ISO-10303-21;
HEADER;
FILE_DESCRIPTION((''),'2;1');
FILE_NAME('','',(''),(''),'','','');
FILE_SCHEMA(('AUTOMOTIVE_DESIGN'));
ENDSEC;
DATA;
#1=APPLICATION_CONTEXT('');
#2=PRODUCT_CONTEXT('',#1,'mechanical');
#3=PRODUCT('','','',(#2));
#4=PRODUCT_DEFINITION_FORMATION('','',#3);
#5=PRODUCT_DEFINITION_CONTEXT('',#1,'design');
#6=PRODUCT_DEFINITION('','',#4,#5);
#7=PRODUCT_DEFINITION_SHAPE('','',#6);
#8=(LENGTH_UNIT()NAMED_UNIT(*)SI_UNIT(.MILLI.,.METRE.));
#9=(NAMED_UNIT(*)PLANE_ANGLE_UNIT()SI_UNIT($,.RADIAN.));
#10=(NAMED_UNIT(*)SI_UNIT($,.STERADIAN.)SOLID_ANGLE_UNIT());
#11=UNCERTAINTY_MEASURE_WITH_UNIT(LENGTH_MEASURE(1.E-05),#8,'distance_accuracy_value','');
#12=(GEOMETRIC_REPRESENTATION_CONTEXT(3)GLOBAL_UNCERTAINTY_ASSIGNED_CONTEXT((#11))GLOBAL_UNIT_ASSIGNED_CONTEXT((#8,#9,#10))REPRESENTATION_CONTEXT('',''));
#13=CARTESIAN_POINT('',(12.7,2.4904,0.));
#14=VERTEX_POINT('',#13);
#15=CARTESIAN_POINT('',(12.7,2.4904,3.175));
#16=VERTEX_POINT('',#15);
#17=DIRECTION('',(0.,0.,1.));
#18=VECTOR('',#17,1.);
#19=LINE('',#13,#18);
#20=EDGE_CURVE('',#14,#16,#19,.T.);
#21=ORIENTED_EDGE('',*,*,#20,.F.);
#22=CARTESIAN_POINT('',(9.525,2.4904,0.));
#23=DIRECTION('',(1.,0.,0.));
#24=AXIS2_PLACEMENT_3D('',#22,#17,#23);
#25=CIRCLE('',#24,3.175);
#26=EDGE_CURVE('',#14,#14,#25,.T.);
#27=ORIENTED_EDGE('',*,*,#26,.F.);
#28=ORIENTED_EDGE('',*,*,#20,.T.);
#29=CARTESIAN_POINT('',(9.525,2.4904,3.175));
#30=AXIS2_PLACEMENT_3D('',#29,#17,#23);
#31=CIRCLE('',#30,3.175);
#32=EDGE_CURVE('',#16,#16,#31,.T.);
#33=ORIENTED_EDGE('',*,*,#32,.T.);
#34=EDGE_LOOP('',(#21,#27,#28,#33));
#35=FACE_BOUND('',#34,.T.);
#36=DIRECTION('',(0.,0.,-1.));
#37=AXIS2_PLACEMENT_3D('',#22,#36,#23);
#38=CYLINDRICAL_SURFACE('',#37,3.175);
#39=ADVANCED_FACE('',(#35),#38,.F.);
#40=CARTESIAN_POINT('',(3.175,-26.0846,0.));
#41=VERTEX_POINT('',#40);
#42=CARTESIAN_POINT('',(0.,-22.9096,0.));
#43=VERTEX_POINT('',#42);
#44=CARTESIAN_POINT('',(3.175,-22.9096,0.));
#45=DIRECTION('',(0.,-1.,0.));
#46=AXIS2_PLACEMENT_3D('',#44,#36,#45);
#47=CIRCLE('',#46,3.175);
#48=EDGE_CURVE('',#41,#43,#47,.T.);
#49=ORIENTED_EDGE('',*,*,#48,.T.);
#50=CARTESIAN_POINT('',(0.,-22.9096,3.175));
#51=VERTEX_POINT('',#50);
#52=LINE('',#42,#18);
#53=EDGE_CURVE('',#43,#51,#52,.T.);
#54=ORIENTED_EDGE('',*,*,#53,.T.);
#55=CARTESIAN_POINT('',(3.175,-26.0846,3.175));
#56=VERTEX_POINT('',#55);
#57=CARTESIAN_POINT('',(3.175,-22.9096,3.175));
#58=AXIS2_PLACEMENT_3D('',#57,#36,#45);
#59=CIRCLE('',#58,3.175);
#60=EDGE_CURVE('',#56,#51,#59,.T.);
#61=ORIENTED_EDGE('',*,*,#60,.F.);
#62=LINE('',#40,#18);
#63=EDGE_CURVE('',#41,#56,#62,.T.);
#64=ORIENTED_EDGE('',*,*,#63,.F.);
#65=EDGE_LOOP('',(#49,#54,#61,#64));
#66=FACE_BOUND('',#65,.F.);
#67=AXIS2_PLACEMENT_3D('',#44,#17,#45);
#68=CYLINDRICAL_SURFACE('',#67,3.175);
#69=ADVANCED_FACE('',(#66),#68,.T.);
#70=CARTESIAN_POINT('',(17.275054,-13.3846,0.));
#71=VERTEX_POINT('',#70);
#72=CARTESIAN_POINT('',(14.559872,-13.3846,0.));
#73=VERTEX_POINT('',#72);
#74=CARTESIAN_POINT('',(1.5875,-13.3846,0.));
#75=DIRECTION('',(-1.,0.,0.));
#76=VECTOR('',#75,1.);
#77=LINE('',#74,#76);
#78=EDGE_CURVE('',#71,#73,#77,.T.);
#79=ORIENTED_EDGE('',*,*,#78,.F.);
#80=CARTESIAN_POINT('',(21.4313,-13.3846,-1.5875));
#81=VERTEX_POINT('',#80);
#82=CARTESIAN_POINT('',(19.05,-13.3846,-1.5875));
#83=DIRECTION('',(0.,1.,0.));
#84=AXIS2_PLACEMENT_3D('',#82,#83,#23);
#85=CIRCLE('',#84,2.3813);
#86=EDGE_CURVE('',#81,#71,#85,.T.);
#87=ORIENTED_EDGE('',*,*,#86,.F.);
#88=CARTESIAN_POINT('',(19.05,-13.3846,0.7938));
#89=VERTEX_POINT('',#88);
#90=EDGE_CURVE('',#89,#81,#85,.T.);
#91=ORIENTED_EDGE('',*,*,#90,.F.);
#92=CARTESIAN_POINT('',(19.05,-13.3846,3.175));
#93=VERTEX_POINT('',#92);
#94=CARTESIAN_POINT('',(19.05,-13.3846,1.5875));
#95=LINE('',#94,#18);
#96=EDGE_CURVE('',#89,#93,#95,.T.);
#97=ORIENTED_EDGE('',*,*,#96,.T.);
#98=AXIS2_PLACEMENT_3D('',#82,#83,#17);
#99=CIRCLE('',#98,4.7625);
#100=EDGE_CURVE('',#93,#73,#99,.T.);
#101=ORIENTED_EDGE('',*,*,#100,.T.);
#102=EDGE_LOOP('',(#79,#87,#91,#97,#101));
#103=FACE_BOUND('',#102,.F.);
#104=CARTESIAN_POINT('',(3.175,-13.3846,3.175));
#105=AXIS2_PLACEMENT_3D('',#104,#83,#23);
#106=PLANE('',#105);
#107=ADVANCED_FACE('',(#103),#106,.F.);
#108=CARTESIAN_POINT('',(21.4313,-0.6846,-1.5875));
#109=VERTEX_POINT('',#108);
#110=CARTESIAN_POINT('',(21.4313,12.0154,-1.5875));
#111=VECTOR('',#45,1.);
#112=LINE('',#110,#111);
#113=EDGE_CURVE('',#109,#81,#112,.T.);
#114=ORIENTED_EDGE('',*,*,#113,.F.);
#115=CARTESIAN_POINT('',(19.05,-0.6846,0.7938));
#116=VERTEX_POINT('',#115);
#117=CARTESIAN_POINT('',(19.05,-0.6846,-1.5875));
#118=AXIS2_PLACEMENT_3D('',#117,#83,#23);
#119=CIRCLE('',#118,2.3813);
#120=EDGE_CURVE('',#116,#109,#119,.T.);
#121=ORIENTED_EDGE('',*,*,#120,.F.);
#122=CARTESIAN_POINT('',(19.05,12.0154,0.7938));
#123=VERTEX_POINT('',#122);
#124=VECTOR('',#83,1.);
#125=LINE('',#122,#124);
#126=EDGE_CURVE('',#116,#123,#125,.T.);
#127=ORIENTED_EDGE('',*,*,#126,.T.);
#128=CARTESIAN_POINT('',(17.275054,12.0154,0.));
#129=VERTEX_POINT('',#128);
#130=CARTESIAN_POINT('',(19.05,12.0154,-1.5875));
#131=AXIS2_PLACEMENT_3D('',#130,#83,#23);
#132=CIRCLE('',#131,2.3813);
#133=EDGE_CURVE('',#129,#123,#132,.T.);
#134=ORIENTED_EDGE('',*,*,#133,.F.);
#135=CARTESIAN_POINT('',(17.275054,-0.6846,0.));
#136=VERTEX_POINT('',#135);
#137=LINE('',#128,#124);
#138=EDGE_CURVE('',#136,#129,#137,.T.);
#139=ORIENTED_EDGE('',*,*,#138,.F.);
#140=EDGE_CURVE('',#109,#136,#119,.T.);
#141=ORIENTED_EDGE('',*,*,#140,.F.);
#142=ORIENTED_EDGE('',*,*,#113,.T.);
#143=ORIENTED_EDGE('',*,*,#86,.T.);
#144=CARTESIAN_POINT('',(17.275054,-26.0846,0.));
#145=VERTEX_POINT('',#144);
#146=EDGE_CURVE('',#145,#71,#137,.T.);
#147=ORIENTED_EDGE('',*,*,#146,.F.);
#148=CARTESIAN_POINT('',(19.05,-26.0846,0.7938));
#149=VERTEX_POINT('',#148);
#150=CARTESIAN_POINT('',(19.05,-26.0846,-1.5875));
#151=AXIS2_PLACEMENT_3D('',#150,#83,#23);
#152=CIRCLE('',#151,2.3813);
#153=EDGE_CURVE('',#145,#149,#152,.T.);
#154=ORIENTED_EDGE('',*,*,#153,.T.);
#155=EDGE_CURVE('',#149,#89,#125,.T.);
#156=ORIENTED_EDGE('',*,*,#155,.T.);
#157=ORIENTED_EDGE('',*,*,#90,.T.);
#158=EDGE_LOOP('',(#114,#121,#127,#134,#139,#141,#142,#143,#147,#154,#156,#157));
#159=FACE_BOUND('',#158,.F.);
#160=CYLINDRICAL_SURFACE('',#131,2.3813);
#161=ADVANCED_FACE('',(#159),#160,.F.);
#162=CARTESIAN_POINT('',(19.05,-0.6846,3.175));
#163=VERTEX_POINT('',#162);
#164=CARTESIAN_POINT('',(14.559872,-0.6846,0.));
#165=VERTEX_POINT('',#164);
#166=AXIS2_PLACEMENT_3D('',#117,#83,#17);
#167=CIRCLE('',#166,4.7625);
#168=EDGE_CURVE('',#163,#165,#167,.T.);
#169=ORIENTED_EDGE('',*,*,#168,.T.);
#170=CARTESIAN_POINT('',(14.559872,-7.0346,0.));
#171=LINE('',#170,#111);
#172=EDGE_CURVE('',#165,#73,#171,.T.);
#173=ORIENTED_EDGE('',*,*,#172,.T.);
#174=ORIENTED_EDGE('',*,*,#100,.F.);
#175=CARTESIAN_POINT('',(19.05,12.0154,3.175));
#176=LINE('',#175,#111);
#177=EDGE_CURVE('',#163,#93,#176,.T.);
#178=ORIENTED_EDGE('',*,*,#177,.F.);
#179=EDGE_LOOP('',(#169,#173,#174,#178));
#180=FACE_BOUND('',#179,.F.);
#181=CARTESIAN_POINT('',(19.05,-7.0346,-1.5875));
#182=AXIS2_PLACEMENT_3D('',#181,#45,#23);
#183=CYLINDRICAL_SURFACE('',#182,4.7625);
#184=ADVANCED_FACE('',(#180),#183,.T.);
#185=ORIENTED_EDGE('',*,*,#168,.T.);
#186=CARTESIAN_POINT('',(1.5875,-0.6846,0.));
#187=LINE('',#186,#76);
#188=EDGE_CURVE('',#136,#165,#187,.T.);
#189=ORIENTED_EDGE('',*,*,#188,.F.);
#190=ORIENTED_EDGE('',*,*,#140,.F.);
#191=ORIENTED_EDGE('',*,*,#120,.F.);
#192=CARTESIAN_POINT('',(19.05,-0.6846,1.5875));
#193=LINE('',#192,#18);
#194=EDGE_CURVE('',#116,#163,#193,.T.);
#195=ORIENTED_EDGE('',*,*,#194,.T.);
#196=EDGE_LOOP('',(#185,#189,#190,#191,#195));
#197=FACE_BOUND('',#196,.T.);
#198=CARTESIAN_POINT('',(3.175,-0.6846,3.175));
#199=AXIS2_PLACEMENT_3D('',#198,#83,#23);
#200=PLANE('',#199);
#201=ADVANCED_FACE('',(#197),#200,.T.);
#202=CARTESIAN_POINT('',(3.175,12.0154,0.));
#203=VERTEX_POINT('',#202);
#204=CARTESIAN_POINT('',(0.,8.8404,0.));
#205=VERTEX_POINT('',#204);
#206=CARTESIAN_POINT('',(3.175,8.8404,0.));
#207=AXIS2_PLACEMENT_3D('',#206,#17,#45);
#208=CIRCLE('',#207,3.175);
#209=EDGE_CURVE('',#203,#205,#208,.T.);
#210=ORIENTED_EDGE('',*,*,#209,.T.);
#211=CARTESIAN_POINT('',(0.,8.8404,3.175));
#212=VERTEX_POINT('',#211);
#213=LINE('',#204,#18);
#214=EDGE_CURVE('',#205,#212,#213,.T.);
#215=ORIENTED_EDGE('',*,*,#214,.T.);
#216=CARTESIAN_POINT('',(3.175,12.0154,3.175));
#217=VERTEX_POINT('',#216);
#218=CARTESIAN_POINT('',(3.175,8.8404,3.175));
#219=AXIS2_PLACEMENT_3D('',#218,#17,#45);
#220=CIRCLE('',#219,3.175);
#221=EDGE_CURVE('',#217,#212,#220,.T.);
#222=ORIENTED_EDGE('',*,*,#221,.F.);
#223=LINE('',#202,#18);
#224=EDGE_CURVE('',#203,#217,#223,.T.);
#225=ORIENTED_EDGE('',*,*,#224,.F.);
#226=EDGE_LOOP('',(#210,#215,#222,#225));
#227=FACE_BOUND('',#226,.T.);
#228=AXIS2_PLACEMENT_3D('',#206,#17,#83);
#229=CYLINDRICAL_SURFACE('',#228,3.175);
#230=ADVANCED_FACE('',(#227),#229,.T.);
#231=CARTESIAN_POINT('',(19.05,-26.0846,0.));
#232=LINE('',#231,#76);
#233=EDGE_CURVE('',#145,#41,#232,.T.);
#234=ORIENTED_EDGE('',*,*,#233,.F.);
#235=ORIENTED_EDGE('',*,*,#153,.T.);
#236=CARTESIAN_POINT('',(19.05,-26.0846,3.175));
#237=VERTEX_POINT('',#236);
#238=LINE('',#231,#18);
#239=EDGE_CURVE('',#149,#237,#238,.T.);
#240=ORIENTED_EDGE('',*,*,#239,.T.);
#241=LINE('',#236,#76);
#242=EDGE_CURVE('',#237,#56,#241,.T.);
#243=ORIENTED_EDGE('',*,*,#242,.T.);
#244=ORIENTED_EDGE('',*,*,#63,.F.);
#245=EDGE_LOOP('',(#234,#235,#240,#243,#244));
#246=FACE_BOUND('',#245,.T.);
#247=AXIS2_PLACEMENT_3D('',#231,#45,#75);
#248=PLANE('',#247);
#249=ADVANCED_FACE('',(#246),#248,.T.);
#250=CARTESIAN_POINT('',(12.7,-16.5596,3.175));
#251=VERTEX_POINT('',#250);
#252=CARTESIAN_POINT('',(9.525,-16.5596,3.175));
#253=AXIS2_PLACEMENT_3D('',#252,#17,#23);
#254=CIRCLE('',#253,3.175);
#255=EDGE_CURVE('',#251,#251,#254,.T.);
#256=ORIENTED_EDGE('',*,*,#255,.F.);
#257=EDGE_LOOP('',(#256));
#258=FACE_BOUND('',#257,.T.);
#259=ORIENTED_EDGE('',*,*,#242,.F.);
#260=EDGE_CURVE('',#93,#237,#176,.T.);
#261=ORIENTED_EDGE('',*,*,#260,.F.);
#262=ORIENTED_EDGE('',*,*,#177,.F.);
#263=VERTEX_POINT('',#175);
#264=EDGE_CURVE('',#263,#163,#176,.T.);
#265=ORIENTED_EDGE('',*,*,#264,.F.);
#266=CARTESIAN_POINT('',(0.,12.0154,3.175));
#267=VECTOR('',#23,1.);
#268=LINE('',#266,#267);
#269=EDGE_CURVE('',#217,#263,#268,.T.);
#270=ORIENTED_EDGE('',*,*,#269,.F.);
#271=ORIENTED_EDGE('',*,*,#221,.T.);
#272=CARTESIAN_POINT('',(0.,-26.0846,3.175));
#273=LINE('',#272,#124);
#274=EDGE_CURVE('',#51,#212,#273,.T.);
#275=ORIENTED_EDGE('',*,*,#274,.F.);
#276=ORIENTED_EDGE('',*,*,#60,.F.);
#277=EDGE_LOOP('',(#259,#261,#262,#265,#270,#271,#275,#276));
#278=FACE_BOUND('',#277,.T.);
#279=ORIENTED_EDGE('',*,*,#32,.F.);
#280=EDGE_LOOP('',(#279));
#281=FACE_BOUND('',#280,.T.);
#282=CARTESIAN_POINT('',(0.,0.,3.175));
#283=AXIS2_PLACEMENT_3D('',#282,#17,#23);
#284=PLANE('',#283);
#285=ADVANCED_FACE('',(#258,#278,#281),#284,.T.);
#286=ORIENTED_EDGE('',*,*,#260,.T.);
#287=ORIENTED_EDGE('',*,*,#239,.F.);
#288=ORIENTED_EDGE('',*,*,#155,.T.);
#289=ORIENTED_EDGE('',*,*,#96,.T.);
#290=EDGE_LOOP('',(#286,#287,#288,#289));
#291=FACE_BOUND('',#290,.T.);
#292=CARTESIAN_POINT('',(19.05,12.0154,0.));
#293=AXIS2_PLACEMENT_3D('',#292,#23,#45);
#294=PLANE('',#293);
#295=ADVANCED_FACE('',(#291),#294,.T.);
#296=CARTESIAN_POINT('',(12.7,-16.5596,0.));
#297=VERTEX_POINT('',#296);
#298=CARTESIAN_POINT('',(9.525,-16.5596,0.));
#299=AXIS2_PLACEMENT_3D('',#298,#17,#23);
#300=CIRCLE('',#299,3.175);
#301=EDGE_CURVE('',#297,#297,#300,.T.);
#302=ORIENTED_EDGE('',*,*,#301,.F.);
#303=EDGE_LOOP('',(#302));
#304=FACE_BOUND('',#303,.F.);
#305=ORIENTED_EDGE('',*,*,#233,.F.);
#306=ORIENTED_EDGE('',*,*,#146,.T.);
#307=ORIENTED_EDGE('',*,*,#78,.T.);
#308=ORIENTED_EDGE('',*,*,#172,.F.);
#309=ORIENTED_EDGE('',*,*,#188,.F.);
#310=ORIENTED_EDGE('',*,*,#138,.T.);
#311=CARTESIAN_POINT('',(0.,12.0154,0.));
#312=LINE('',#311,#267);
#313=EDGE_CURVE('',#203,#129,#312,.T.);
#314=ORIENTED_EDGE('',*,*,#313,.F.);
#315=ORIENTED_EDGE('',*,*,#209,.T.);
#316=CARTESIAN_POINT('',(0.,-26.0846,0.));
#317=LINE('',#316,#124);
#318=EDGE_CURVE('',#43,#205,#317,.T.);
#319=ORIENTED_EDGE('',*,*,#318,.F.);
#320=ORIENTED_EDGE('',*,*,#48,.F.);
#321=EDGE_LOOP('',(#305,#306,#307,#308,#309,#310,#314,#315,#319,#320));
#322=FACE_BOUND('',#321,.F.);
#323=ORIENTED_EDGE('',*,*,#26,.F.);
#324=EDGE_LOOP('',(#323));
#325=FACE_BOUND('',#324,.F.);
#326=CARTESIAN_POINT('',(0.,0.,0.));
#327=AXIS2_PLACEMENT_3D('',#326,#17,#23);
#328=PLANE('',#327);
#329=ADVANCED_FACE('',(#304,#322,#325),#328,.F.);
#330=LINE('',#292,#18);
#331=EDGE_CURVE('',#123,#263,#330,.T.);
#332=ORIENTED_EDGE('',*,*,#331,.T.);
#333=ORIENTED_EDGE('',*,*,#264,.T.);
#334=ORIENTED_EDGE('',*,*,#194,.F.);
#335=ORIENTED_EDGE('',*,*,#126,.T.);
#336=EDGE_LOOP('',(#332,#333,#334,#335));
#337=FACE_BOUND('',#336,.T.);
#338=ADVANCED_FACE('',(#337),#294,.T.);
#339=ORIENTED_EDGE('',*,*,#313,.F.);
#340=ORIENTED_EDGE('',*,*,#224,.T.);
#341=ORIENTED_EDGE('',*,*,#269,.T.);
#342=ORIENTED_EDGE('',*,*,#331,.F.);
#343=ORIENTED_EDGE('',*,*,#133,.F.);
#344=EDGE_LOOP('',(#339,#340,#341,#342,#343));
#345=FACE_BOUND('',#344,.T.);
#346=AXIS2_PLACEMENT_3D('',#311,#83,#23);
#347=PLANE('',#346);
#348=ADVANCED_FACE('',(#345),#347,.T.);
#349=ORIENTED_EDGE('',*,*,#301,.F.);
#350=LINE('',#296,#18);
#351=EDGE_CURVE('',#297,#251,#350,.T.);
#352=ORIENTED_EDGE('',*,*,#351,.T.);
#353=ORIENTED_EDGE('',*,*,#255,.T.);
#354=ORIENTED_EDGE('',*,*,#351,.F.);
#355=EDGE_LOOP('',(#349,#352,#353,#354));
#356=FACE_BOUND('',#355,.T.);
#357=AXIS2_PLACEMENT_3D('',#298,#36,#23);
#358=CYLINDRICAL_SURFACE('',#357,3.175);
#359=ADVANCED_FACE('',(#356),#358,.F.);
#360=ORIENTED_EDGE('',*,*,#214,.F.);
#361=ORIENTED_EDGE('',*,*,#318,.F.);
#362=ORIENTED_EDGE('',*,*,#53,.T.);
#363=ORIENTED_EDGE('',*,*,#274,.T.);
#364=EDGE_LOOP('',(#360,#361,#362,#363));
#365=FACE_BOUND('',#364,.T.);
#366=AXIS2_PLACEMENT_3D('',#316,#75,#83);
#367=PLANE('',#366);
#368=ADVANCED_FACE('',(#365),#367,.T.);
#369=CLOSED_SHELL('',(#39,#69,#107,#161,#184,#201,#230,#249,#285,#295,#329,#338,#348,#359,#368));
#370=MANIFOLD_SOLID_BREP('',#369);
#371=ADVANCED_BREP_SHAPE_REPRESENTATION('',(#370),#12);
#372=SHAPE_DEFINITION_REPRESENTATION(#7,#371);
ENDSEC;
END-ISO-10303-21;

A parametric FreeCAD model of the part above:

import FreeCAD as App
import Part
import Sketcher

V = App.Vector
Q = App.Units.Quantity


def edges_at(feature, points):
    """Names of the edges that pass closest to the given points."""
    edges = feature.Shape.Edges
    near = lambda p: min(range(len(edges)), key=lambda i: edges[i].distToShape(Part.Vertex(*p))[0])
    return sorted({f"Edge{near(p) + 1}" for p in points})


def add_polygon(sketch, points):
    """Adds a closed chain of lines whose ends are joined by coincident constraints."""
    first, n = sketch.GeometryCount, len(points)
    for a, b in zip(points, points[1:] + points[:1]):
        sketch.addGeometry(Part.LineSegment(App.Vector(*a, 0), App.Vector(*b, 0)), False)
    for i in range(n):
        sketch.addConstraint(Sketcher.Constraint("Coincident", first + i, 2, first + (i + 1) % n, 1))

doc = App.newDocument("Part")
body = doc.addObject("PartDesign::Body", "Body")

sketch1 = body.newObject("Sketcher::SketchObject", "Sketch")
sketch1.AttachmentSupport = (doc.getObject("XY_Plane"), [""])
sketch1.MapMode = "FlatFace"
add_polygon(sketch1, [(19.05, 12.0154), (0, 12.0154), (0, -26.0846), (19.05, -26.0846)])
sketch1.addGeometry(Part.Circle(V(9.525, -16.5596, 0), V(0, 0, 1), 3.175), False)
sketch1.addGeometry(Part.Circle(V(9.525, 2.4904, 0), V(0, 0, 1), 3.175), False)
sketch1.addConstraint([
    Sketcher.Constraint("Horizontal", 0),
    Sketcher.Constraint("Vertical", 1),
    Sketcher.Constraint("Horizontal", 2),
    Sketcher.Constraint("Vertical", 3),
    Sketcher.Constraint("Equal", 4, 5),
    Sketcher.Constraint("PointOnObject", 0, 2, -2),
    Sketcher.Constraint("Vertical", 4, 3, 5, 3),
    Sketcher.Constraint("Diameter", 4, Q("0.25 in")),
    Sketcher.Constraint("DistanceY", 1, 2, 1, 1, Q("1.5 in")),
    Sketcher.Constraint("DistanceX", 0, 2, 0, 1, Q("0.75 in")),
    Sketcher.Constraint("DistanceY", 4, 3, 5, 3, Q("0.75 in")),
    Sketcher.Constraint("DistanceX", -1, 1, 4, 3, Q("0.375 in")),
    Sketcher.Constraint("DistanceY", 5, 3, 0, 2, Q("0.375 in")),
    Sketcher.Constraint("DistanceY", 4, 3, -1, 1, 16.5596),
])
pad1 = body.newObject("PartDesign::Pad", "Pad")
pad1.Profile = sketch1
pad1.Length = Q("0.125 in")
doc.recompute()

fillet = body.newObject("PartDesign::Fillet", "Fillet")
fillet.Base = (pad1, edges_at(pad1, [(0, 12.015, 1.587), (0, -26.085, 1.587)]))
fillet.Radius = Q("0.125 in")

sketch2 = body.newObject("Sketcher::SketchObject", "Sketch001")
sketch2.AttachmentSupport = (doc.getObject("XZ_Plane"), [""])
sketch2.MapMode = "FlatFace"
sketch2.AttachmentOffset = App.Placement(V(0, 0, 7.0346), App.Rotation())
sketch2.addGeometry(Part.Circle(V(19.05, -1.5875, 0), V(0, 0, 1), 4.7625), False)
sketch2.addConstraint([
    Sketcher.Constraint("Diameter", 0, Q("0.375 in")),
    Sketcher.Constraint("DistanceX", -1, 1, 0, 3, Q("0.75 in")),
    Sketcher.Constraint("DistanceY", 0, 3, -1, 1, Q("0.0625 in")),
])
pad2 = body.newObject("PartDesign::Pad", "Pad001")
pad2.Profile = sketch2
pad2.Length = Q("0.5 in")
pad2.Midplane = True

sketch3 = body.newObject("Sketcher::SketchObject", "Sketch002")
sketch3.AttachmentSupport = (doc.getObject("XZ_Plane"), [""])
sketch3.MapMode = "FlatFace"
sketch3.AttachmentOffset = App.Placement(V(0, 0, -12.0154), App.Rotation())
sketch3.addGeometry(Part.Circle(V(19.05, -1.5875, 0), V(0, 0, 1), 2.3813), False)
sketch3.addConstraint([
    Sketcher.Constraint("Diameter", 0, Q("0.1875 in")),
    Sketcher.Constraint("DistanceX", -1, 1, 0, 3, Q("0.75 in")),
    Sketcher.Constraint("DistanceY", 0, 3, -1, 1, Q("0.0625 in")),
])
pocket1 = body.newObject("PartDesign::Pocket", "Pocket")
pocket1.Profile = sketch3
pocket1.Length = Q("1.5 in")
pocket1.Reversed = True

doc.recompute()
